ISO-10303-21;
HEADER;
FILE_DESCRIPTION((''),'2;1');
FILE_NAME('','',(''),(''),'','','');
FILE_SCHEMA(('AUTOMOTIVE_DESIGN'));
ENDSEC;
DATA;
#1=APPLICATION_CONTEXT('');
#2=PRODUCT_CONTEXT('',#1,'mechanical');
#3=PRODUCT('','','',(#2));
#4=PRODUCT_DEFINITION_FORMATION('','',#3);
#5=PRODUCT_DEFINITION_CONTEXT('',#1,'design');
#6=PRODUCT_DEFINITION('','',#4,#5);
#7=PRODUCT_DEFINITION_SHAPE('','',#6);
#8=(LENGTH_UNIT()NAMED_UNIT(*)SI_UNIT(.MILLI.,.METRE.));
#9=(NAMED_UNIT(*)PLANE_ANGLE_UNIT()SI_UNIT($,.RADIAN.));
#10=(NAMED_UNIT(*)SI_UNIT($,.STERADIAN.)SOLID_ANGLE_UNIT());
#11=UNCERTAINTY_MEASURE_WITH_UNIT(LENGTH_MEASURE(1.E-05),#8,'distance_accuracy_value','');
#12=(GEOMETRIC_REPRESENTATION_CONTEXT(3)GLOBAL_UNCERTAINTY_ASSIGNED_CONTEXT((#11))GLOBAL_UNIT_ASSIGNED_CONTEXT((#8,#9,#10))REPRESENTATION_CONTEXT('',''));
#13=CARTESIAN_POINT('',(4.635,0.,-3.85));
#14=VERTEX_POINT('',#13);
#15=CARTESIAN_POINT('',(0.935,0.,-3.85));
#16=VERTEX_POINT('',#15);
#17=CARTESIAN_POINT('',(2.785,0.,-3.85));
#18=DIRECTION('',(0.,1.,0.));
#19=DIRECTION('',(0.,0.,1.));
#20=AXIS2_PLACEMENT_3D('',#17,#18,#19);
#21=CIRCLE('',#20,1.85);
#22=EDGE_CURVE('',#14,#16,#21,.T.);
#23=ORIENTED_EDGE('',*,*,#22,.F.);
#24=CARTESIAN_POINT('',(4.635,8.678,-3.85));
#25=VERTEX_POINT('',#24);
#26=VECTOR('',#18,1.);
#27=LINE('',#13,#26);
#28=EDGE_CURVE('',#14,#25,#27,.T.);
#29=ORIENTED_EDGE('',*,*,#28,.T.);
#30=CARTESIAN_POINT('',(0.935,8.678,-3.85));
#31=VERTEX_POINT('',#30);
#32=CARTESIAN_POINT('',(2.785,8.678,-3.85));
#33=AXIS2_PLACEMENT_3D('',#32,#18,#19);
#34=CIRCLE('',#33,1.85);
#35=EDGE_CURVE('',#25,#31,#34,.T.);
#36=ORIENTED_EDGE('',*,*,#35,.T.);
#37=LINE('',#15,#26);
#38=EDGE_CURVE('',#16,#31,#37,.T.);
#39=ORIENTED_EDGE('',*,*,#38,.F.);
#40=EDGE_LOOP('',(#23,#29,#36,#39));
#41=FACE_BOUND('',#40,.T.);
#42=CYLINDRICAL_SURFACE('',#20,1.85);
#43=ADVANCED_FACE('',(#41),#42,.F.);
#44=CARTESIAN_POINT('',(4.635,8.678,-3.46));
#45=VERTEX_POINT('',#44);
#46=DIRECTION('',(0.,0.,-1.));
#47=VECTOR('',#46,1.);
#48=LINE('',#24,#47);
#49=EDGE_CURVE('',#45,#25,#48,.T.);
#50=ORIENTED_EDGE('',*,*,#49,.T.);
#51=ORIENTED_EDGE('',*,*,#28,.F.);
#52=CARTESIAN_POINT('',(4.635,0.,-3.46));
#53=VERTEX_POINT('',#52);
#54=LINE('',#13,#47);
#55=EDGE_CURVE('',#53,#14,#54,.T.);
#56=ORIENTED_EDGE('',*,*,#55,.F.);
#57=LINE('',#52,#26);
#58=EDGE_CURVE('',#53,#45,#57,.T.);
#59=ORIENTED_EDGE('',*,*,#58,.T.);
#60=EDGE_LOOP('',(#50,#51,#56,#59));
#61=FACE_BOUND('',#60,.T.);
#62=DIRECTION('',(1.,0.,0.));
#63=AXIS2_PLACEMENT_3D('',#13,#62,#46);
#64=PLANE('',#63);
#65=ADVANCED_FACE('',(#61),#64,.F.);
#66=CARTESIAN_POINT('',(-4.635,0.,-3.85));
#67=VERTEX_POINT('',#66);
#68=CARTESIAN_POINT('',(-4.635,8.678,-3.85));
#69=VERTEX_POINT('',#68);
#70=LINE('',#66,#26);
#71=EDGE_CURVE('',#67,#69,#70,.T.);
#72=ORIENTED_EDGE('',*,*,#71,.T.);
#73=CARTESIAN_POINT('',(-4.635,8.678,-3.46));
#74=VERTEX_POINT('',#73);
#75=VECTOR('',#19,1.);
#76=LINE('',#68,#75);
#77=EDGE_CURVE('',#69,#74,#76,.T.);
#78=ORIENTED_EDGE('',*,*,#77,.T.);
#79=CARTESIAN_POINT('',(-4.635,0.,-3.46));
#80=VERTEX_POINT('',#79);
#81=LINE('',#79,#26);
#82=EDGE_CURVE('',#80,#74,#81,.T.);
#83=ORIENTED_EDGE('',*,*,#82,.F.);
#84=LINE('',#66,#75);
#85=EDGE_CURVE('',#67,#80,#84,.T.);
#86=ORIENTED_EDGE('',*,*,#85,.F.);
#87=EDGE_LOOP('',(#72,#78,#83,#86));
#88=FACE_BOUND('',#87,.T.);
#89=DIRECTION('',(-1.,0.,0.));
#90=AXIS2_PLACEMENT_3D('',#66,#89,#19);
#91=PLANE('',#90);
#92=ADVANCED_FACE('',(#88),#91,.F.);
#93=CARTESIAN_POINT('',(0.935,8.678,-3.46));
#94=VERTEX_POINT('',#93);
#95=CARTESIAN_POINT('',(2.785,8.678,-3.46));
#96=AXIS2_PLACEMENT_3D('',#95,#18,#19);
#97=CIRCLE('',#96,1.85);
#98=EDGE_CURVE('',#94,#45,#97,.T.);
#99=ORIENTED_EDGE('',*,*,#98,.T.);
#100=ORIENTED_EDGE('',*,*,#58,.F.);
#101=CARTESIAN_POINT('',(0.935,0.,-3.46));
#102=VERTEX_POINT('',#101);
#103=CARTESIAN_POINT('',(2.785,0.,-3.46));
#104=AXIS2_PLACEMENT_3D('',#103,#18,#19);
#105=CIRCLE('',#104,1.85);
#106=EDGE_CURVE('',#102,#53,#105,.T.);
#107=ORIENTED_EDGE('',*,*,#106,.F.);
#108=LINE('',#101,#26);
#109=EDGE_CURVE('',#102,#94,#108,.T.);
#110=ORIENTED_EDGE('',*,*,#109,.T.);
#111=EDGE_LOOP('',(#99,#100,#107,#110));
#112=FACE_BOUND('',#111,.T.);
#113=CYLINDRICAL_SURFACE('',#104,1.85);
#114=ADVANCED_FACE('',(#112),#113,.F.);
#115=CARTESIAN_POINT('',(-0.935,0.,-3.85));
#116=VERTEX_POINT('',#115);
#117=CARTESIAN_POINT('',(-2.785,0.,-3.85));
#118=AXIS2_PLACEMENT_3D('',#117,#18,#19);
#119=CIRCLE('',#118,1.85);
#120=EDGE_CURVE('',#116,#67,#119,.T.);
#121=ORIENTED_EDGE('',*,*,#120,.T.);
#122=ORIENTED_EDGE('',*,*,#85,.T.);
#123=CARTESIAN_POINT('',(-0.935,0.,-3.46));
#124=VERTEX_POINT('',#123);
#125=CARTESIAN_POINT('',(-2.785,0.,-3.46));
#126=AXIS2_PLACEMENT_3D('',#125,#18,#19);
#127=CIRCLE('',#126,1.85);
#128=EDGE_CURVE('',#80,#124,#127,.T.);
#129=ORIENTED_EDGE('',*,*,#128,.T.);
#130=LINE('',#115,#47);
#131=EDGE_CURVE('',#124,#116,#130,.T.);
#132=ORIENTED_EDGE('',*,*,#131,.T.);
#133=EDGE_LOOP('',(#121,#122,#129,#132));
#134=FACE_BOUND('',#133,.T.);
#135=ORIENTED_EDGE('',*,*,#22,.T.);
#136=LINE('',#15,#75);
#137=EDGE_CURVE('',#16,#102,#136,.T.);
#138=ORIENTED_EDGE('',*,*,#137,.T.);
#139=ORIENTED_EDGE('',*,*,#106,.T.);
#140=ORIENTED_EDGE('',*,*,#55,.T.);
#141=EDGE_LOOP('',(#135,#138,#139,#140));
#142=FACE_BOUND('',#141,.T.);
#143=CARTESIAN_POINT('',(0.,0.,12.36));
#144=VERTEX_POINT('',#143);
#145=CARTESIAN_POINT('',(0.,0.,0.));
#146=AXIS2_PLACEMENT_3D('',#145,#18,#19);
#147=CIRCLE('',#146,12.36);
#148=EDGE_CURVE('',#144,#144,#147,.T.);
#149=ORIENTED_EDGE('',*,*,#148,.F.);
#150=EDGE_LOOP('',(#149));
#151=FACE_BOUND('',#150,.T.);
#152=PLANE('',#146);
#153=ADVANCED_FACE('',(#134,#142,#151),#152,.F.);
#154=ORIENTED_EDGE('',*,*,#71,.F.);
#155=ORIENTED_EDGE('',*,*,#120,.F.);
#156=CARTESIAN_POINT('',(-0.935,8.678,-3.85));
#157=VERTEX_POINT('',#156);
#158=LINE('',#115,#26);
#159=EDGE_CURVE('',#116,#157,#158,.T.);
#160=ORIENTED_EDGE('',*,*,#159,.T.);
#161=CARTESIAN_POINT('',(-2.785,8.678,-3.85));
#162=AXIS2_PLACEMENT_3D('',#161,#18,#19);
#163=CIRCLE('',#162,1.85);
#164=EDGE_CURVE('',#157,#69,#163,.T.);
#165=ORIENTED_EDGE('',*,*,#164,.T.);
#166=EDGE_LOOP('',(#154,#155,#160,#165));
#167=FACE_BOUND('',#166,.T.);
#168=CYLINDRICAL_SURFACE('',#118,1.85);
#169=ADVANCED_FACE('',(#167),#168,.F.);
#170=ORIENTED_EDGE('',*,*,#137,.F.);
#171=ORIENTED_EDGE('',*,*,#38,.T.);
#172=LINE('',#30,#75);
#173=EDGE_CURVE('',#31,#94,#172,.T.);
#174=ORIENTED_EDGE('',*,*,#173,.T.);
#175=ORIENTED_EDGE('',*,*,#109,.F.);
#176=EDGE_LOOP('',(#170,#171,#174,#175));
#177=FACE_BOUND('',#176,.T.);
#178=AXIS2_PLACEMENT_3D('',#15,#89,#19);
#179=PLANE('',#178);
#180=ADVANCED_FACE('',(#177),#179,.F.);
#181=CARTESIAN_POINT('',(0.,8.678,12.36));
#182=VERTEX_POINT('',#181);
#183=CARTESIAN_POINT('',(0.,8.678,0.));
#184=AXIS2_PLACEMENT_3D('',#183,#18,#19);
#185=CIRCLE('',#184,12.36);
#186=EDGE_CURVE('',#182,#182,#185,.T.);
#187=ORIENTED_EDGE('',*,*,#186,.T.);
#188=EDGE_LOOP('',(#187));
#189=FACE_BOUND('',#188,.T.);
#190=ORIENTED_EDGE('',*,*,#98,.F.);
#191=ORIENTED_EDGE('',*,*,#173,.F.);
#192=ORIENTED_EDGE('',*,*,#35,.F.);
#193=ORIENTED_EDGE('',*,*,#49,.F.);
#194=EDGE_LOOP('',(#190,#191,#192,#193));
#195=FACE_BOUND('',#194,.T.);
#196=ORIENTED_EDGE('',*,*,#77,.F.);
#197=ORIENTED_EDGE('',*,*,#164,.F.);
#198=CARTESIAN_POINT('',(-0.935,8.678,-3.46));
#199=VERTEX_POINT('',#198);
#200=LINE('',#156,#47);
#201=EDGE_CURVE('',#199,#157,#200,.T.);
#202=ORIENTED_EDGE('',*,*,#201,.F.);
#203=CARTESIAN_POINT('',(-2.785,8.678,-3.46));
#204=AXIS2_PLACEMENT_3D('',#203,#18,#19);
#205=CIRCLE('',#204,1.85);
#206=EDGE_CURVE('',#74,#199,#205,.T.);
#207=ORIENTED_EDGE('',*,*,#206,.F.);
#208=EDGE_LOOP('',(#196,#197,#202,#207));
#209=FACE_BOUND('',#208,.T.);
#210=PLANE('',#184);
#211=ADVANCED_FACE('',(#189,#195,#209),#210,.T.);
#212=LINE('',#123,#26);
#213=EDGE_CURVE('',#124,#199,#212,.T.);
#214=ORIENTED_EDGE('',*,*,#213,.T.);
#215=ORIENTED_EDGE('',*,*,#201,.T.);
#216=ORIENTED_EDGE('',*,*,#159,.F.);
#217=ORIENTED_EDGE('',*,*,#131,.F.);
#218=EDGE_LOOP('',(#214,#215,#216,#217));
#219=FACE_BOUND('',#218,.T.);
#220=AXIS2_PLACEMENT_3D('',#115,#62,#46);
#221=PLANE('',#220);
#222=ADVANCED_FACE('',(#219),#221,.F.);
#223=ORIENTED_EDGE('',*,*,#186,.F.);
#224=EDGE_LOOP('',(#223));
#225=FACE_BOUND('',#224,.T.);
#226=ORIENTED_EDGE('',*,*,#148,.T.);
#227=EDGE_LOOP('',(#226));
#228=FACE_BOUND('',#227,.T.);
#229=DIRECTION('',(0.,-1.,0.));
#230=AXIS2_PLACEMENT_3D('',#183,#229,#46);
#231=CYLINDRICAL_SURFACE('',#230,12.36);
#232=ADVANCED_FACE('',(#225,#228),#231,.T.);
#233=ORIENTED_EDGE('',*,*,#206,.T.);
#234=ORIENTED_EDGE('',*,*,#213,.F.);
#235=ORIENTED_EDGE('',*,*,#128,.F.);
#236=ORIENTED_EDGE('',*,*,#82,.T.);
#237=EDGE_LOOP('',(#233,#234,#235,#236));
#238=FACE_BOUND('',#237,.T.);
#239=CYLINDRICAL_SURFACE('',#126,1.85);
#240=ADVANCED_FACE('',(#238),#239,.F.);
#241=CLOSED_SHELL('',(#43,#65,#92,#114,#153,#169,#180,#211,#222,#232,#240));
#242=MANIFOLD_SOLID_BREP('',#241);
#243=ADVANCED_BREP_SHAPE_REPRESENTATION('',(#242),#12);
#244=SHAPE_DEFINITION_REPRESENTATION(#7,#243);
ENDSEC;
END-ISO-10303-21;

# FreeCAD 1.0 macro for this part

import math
import FreeCAD as App
import Part
import Sketcher

V = App.Vector
Q = App.Units.Quantity

doc = App.newDocument("Part")
params = doc.addObject("Spreadsheet::Sheet", "Params")
for row, (alias, value) in enumerate([
    ("sketch1_diameter", "24.72 mm"),
    ("pad1_length", "8.678 mm"),
    ("sketch2_radius", "1.85 mm"),
    ("sketch2_height", "0.39 mm"),
], start=1):
    params.set(f"A{row}", alias)
    params.set(f"B{row}", "=" + value)
    params.setAlias(f"B{row}", alias)

body = doc.addObject("PartDesign::Body", "Body")

sketch1 = body.newObject("Sketcher::SketchObject", "Sketch")
sketch1.AttachmentSupport = (doc.getObject("XZ_Plane"), [""])
sketch1.MapMode = "FlatFace"
sketch1.addGeometry(Part.Circle(V(0, 0, 0), V(0, 0, 1), 12.36), False)
sketch1.addConstraint(Sketcher.Constraint("Coincident", 0, 3, -1, 1))
sketch1.addConstraint(Sketcher.Constraint("Diameter", 0, Q("24.72 mm")))
sketch1.setExpression("Constraints[1]", "Params.sketch1_diameter")
pad1 = body.newObject("PartDesign::Pad", "Pad")
pad1.Profile = sketch1
pad1.setExpression("Length", "Params.pad1_length")
pad1.Reversed = True

sketch2 = body.newObject("Sketcher::SketchObject", "Sketch001")
sketch2.AttachmentSupport = (doc.getObject("XZ_Plane"), [""])
sketch2.MapMode = "FlatFace"
sketch2.AttachmentOffset = App.Placement(V(0, 0, -8.678), App.Rotation())
sketch2.addGeometry(Part.LineSegment(V(4.635, -3.46, 0), V(4.635, -3.85, 0)), False)
sketch2.addGeometry(Part.ArcOfCircle(Part.Circle(V(2.785, -3.85, 0), V(0, 0, 1), 1.85), math.radians(180), math.radians(360)), False)
sketch2.addGeometry(Part.LineSegment(V(0.935, -3.85, 0), V(0.935, -3.46, 0)), False)
sketch2.addGeometry(Part.ArcOfCircle(Part.Circle(V(2.785, -3.46, 0), V(0, 0, 1), 1.85), math.radians(0), math.radians(180)), False)
sketch2.addGeometry(Part.LineSegment(V(-0.935, -3.46, 0), V(-0.935, -3.85, 0)), False)
sketch2.addGeometry(Part.ArcOfCircle(Part.Circle(V(-2.785, -3.85, 0), V(0, 0, 1), 1.85), math.radians(180), math.radians(360)), False)
sketch2.addGeometry(Part.LineSegment(V(-4.635, -3.85, 0), V(-4.635, -3.46, 0)), False)
sketch2.addGeometry(Part.ArcOfCircle(Part.Circle(V(-2.785, -3.46, 0), V(0, 0, 1), 1.85), math.radians(0), math.radians(180)), False)
sketch2.addConstraint(Sketcher.Constraint("Tangent", 0, 2, 1, 2))
sketch2.addConstraint(Sketcher.Constraint("Tangent", 1, 1, 2, 1))
sketch2.addConstraint(Sketcher.Constraint("Tangent", 2, 2, 3, 2))
sketch2.addConstraint(Sketcher.Constraint("Tangent", 3, 1, 0, 1))
sketch2.addConstraint(Sketcher.Constraint("Tangent", 4, 2, 5, 2))
sketch2.addConstraint(Sketcher.Constraint("Tangent", 5, 1, 6, 1))
sketch2.addConstraint(Sketcher.Constraint("Tangent", 6, 2, 7, 2))
sketch2.addConstraint(Sketcher.Constraint("Tangent", 7, 1, 4, 1))
sketch2.addConstraint(Sketcher.Constraint("Vertical", 0))
sketch2.addConstraint(Sketcher.Constraint("Vertical", 2))
sketch2.addConstraint(Sketcher.Constraint("Vertical", 4))
sketch2.addConstraint(Sketcher.Constraint("Vertical", 6))
sketch2.addConstraint(Sketcher.Constraint("Equal", 3, 5))
sketch2.addConstraint(Sketcher.Constraint("Symmetric", 1, 3, 5, 3, -2))
sketch2.addConstraint(Sketcher.Constraint("Horizontal", 3, 3, 7, 3))
sketch2.addConstraint(Sketcher.Constraint("Radius", 1, Q("1.85 mm")))
sketch2.addConstraint(Sketcher.Constraint("DistanceY", 0, 2, 0, 1, Q("0.39 mm")))
sketch2.addConstraint(Sketcher.Constraint("DistanceY", 1, 3, -1, 1, Q("3.85 mm")))
sketch2.addConstraint(Sketcher.Constraint("DistanceX", 5, 3, 1, 3, Q("5.57 mm")))
sketch2.setExpression("Constraints[15]", "Params.sketch2_radius")
sketch2.setExpression("Constraints[16]", "Params.sketch2_height")
pocket1 = body.newObject("PartDesign::Pocket", "Pocket")
pocket1.Profile = sketch2
pocket1.Type = "ThroughAll"
pocket1.Reversed = True

doc.recompute()
